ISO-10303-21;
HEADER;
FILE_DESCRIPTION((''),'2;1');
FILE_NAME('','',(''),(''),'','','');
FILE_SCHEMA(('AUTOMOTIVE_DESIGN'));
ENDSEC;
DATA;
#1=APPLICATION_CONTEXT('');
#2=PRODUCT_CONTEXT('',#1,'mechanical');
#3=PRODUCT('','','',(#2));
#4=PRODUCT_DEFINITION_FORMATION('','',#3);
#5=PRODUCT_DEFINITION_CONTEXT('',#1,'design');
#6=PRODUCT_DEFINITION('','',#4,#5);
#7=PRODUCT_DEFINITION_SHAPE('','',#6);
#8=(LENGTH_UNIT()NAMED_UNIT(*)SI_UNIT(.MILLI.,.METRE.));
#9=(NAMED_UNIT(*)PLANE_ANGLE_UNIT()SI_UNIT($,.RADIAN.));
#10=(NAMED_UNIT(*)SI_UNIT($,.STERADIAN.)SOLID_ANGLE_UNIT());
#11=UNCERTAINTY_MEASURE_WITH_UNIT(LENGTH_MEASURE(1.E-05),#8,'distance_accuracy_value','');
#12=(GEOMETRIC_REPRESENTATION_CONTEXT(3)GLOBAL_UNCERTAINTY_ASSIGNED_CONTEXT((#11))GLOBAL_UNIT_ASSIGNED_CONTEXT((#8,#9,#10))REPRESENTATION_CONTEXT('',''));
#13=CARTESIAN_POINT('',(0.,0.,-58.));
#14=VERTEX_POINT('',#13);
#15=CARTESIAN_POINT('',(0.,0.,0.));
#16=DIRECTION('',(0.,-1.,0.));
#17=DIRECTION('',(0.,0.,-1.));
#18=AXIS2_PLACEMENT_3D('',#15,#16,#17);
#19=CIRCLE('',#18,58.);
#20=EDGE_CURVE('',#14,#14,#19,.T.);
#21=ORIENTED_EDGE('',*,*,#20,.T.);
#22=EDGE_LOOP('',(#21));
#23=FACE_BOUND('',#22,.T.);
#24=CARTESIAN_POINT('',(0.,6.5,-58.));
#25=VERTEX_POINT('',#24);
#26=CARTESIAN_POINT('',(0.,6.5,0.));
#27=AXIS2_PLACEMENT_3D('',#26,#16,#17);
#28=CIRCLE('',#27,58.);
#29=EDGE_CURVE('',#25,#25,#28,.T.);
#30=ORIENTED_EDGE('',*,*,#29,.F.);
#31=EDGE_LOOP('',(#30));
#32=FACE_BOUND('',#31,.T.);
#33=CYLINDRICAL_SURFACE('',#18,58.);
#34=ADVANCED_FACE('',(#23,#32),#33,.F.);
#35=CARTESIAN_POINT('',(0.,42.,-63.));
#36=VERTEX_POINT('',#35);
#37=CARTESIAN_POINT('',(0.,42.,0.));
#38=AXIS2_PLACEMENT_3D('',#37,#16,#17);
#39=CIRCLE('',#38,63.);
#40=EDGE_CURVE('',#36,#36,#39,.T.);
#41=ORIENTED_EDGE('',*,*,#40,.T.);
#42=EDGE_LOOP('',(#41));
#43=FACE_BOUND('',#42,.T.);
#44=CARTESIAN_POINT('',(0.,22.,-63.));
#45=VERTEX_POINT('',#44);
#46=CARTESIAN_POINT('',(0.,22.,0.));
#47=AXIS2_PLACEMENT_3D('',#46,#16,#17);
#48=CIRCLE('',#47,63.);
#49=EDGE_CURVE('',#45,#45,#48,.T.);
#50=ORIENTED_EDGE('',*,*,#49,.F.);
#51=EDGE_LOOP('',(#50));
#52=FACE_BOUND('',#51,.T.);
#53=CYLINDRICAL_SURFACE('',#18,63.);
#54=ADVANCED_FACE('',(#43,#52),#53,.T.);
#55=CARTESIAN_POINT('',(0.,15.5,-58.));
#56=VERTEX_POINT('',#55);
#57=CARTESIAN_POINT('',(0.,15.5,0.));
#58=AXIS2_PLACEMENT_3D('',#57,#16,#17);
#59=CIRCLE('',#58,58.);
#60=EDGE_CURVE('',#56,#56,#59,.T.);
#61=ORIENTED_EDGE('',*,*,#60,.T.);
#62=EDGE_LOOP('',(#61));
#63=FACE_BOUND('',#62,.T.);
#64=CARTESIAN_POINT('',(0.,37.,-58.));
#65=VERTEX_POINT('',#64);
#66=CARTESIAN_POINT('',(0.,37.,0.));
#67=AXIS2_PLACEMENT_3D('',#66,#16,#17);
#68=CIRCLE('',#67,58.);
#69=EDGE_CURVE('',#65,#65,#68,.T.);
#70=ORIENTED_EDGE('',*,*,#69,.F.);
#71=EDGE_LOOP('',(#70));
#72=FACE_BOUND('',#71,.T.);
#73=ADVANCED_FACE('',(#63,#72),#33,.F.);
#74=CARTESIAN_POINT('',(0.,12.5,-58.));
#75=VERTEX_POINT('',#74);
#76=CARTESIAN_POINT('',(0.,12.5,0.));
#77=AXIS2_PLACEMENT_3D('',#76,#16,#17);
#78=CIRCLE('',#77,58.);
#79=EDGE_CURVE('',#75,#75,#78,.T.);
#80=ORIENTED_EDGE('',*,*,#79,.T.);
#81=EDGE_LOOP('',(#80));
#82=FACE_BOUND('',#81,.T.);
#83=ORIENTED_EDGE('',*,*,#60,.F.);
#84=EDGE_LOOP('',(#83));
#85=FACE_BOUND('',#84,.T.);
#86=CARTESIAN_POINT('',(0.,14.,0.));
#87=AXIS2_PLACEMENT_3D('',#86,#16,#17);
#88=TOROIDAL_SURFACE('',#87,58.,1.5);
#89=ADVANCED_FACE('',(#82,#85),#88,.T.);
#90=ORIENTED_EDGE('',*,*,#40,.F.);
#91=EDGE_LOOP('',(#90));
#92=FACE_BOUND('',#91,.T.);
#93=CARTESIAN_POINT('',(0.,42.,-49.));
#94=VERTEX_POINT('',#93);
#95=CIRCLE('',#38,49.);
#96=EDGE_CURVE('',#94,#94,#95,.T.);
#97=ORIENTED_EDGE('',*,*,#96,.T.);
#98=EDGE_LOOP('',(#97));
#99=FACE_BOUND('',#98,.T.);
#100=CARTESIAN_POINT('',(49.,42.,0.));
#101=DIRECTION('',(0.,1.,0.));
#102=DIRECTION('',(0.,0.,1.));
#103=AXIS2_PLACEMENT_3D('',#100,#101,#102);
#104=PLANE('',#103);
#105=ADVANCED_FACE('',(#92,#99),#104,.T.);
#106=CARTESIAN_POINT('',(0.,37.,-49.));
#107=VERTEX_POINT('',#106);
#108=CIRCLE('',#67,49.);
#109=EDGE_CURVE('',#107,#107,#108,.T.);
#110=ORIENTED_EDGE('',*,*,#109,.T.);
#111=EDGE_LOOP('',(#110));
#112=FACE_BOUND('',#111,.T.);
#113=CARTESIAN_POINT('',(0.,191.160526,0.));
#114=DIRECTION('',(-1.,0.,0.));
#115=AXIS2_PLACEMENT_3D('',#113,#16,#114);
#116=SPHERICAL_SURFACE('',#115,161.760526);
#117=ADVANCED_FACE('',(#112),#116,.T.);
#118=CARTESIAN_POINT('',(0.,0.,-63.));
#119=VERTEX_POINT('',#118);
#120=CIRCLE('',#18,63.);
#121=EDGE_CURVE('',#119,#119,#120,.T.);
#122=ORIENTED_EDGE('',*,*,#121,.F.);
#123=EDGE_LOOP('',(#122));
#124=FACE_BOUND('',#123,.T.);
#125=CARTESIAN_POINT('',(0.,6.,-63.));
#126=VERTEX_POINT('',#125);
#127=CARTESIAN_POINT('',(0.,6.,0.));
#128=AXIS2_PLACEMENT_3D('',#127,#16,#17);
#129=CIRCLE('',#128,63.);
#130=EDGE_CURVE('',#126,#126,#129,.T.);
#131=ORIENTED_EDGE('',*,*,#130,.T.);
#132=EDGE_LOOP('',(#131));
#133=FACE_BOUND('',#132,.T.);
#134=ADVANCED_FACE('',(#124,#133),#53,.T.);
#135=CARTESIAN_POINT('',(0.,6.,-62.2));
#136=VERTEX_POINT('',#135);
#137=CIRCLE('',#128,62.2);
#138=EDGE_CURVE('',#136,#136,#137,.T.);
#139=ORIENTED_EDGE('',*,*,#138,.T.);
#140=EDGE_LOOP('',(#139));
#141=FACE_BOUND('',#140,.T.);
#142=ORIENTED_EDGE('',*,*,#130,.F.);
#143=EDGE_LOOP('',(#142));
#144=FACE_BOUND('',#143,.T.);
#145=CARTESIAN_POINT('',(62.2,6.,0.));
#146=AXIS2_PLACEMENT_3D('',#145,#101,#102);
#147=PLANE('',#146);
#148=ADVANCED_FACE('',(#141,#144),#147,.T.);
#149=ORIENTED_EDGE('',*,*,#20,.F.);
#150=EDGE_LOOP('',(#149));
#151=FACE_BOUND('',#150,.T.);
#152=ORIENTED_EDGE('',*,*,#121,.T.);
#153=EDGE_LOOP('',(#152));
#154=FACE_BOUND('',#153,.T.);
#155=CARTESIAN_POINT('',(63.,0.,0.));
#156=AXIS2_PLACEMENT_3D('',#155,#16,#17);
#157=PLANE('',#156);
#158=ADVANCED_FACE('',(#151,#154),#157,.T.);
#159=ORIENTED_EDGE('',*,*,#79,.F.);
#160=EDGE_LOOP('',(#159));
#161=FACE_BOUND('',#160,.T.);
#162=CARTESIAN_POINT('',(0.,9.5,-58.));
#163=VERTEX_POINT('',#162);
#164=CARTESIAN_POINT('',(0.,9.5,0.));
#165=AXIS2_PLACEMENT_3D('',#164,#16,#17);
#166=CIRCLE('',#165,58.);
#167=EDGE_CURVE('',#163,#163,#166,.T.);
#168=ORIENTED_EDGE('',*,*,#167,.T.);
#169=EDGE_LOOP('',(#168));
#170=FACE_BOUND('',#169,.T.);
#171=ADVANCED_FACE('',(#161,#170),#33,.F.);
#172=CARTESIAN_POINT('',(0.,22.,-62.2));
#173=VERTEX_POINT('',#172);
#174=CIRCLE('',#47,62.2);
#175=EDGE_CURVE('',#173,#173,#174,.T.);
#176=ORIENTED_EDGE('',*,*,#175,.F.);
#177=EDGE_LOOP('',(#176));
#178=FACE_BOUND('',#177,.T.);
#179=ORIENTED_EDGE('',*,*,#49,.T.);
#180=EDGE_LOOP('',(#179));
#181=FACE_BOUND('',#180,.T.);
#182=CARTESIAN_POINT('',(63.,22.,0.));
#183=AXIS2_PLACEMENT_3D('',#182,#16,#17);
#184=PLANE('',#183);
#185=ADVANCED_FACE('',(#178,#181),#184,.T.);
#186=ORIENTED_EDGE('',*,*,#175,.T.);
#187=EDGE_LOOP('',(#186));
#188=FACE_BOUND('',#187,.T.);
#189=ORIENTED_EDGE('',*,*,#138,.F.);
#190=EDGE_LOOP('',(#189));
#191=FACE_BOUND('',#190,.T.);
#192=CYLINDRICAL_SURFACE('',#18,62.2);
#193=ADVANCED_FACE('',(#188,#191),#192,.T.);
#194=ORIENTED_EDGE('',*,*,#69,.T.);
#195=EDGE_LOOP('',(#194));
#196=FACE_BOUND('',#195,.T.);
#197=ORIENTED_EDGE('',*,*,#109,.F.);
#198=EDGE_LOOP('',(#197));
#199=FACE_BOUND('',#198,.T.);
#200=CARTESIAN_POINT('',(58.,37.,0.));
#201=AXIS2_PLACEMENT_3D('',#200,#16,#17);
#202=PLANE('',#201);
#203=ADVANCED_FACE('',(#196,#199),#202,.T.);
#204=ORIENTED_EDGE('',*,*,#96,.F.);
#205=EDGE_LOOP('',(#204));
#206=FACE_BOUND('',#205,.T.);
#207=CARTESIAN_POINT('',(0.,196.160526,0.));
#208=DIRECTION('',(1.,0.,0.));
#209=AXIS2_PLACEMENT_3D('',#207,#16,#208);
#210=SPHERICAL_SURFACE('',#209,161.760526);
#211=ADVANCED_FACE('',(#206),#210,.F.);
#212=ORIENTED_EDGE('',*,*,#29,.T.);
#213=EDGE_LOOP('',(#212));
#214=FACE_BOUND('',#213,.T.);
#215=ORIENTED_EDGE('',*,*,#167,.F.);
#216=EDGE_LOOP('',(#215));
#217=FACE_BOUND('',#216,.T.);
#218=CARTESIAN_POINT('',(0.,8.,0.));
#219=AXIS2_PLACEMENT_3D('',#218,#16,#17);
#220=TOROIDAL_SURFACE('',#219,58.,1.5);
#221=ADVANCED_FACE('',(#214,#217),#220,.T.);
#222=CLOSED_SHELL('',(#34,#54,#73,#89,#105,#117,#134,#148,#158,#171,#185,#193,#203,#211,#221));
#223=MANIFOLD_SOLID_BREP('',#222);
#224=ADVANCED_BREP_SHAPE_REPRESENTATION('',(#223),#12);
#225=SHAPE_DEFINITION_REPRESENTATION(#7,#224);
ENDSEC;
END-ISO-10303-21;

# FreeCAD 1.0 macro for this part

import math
import FreeCAD as App
import Part
import Sketcher
from FreeCAD import Vector

doc = App.newDocument("Part")
params = doc.addObject("Spreadsheet::Sheet", "Params")
for row, (alias, value) in enumerate([
    ("sketch1_radius", "1.5 mm"),
    ("sketch1_width", "9 mm"),
    ("sketch1_width2", "5 mm"),
    ("sketch1_height", "3 mm"),
    ("sketch1_height2", "6 mm"),
    ("revolution_angle", "360 deg"),
], start=1):
    params.set(f"A{row}", alias)
    params.set(f"B{row}", "=" + value)
    params.setAlias(f"B{row}", alias)

body = doc.addObject("PartDesign::Body", "Body")

sketch1 = doc.addObject("Sketcher::SketchObject", "Sketch")
body.addObject(sketch1)
sketch1.AttachmentSupport = (doc.XY_Plane, [""])
sketch1.MapMode = "FlatFace"
sketch1.addGeometry([
    Part.LineSegment(Vector(0, 34.4, 0), Vector(0, 29.4, 0)),
    Part.ArcOfCircle(Part.Circle(Vector(0, 191.2, 0), Vector(0, 0, 1), 161.8), math.radians(-90), math.radians(-72.37)),
    Part.LineSegment(Vector(49, 37, 0), Vector(58, 37, 0)),
    Part.LineSegment(Vector(58, 37, 0), Vector(58, 15.5, 0)),
    Part.ArcOfCircle(Part.Circle(Vector(58, 14, 0), Vector(0, 0, 1), 1.5), math.radians(90), math.radians(270)),
    Part.LineSegment(Vector(58, 12.5, 0), Vector(58, 9.5, 0)),
    Part.ArcOfCircle(Part.Circle(Vector(58, 8, 0), Vector(0, 0, 1), 1.5), math.radians(90), math.radians(270)),
    Part.LineSegment(Vector(58, 6.5, 0), Vector(58, 0, 0)),
    Part.LineSegment(Vector(58, 0, 0), Vector(63, 0, 0)),
    Part.LineSegment(Vector(63, 0, 0), Vector(63, 6, 0)),
    Part.LineSegment(Vector(63, 6, 0), Vector(62.2, 6, 0)),
    Part.LineSegment(Vector(62.2, 6, 0), Vector(62.2, 22, 0)),
    Part.LineSegment(Vector(62.2, 22, 0), Vector(63, 22, 0)),
    Part.LineSegment(Vector(63, 22, 0), Vector(63, 42, 0)),
    Part.LineSegment(Vector(63, 42, 0), Vector(49, 42, 0)),
    Part.ArcOfCircle(Part.Circle(Vector(0, 196.2, 0), Vector(0, 0, 1), 161.8), math.radians(-90), math.radians(-72.37)),
], False)
sketch1.addConstraint([
    Sketcher.Constraint("Coincident", 0, 2, 1, 1),
    Sketcher.Constraint("Coincident", 1, 2, 2, 1),
    Sketcher.Constraint("Coincident", 2, 2, 3, 1),
    Sketcher.Constraint("Coincident", 3, 2, 4, 1),
    Sketcher.Constraint("Coincident", 4, 2, 5, 1),
    Sketcher.Constraint("Coincident", 5, 2, 6, 1),
    Sketcher.Constraint("Coincident", 6, 2, 7, 1),
    Sketcher.Constraint("Coincident", 7, 2, 8, 1),
    Sketcher.Constraint("Coincident", 8, 2, 9, 1),
    Sketcher.Constraint("Coincident", 9, 2, 10, 1),
    Sketcher.Constraint("Coincident", 10, 2, 11, 1),
    Sketcher.Constraint("Coincident", 11, 2, 12, 1),
    Sketcher.Constraint("Coincident", 12, 2, 13, 1),
    Sketcher.Constraint("Coincident", 13, 2, 14, 1),
    Sketcher.Constraint("Coincident", 14, 2, 15, 2),
    Sketcher.Constraint("Coincident", 15, 1, 0, 1),
    Sketcher.Constraint("Vertical", 0),
    Sketcher.Constraint("Horizontal", 2),
    Sketcher.Constraint("Vertical", 3),
    Sketcher.Constraint("Vertical", 5),
    Sketcher.Constraint("Vertical", 7),
    Sketcher.Constraint("Horizontal", 8),
    Sketcher.Constraint("Vertical", 9),
    Sketcher.Constraint("Horizontal", 10),
    Sketcher.Constraint("Vertical", 11),
    Sketcher.Constraint("Horizontal", 12),
    Sketcher.Constraint("Vertical", 13),
    Sketcher.Constraint("Horizontal", 14),
    Sketcher.Constraint("Equal", 4, 6),
    Sketcher.Constraint("Equal", 1, 15),
    Sketcher.Constraint("PointOnObject", 1, 3, -2),
    Sketcher.Constraint("PointOnObject", 15, 3, -2),
    Sketcher.Constraint("PointOnObject", 0, 2, -2),
    Sketcher.Constraint("PointOnObject", 7, 2, -1),
    Sketcher.Constraint("Vertical", 4, 3, 6, 3),
    Sketcher.Constraint("Vertical", 6, 3, 2, 2),
    Sketcher.Constraint("Vertical", 3, 2, 4, 2),
    Sketcher.Constraint("Vertical", 5, 2, 6, 2),
    Sketcher.Constraint("Vertical", 9, 2, 12, 2),
    Sketcher.Constraint("Vertical", 1, 2, 14, 2),
    Sketcher.Constraint("Equal", 8, 0),
    Sketcher.Constraint("Radius", 4, 1.5),
    Sketcher.Constraint("DistanceX", 2, 1, 2, 2, 9.0),
    Sketcher.Constraint("DistanceX", 8, 1, 8, 2, 5.0),
    Sketcher.Constraint("DistanceY", 5, 2, 5, 1, 3.0),
    Sketcher.Constraint("DistanceY", 9, 1, 9, 2, 6.0),
    Sketcher.Constraint("DistanceY", 11, 1, 11, 2, 16.0),
    Sketcher.Constraint("DistanceY", 13, 1, 13, 2, 20.0),
    Sketcher.Constraint("DistanceX", 10, 2, 10, 1, 0.8),
    Sketcher.Constraint("DistanceY", 3, 2, 3, 1, 21.5),
    Sketcher.Constraint("DistanceX", -1, 1, 4, 3, 58.0),
    Sketcher.Constraint("DistanceY", -1, 1, 0, 2, 29.4),
])
sketch1.setExpression("Constraints[41]", "Params.sketch1_radius")
sketch1.setExpression("Constraints[42]", "Params.sketch1_width")
sketch1.setExpression("Constraints[43]", "Params.sketch1_width2")
sketch1.setExpression("Constraints[44]", "Params.sketch1_height")
sketch1.setExpression("Constraints[45]", "Params.sketch1_height2")
revolution = doc.addObject("PartDesign::Revolution", "Revolution")
body.addObject(revolution)
revolution.Profile = sketch1
revolution.ReferenceAxis = (sketch1, ["V_Axis"])
revolution.setExpression("Angle", "Params.revolution_angle")

doc.recompute()
